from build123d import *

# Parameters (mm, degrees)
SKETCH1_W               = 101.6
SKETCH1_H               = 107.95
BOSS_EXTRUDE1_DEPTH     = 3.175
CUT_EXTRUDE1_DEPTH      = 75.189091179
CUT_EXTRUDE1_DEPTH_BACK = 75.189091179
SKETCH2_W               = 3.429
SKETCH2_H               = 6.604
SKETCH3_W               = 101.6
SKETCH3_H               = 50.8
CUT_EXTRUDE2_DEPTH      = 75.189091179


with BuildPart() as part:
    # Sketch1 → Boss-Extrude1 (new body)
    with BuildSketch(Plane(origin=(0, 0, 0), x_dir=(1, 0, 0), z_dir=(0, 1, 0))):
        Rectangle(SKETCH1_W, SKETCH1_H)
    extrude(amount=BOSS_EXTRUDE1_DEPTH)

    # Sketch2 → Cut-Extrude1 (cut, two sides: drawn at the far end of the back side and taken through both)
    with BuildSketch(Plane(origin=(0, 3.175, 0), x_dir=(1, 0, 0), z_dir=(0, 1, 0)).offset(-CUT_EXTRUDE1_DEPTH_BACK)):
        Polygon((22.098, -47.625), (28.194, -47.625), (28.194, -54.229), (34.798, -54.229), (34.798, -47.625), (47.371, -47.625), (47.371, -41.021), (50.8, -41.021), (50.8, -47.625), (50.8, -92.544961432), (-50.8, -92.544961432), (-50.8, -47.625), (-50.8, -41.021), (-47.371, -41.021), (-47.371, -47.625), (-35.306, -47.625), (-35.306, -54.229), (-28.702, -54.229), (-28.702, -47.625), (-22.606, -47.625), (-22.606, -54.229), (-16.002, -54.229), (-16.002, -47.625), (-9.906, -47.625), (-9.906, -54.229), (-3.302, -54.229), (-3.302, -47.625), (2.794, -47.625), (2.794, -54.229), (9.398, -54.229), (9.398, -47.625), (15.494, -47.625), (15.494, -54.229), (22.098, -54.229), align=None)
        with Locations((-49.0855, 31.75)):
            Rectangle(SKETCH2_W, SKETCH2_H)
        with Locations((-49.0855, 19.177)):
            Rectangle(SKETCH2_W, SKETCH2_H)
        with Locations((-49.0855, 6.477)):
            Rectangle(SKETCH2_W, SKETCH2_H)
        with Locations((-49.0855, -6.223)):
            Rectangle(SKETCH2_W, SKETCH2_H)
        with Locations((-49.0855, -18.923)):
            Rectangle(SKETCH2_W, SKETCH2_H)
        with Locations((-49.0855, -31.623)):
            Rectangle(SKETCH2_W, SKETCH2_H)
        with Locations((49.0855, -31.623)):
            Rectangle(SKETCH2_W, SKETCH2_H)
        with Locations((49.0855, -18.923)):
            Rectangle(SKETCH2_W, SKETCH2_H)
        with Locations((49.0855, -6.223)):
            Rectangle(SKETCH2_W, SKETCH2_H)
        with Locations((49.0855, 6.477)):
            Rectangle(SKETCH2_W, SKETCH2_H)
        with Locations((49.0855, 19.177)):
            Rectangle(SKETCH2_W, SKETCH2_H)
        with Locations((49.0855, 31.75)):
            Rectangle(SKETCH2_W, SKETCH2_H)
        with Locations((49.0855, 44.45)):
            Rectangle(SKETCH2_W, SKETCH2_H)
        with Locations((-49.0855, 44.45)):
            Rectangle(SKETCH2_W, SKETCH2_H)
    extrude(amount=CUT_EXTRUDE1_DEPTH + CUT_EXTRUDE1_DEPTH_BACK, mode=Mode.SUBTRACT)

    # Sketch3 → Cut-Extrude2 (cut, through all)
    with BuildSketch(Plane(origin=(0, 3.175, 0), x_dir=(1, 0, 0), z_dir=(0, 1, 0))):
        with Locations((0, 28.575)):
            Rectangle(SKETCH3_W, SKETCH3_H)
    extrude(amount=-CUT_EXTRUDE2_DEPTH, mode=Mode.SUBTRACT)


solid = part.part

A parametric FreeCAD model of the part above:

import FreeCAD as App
import Part
import Sketcher

V = App.Vector
Q = App.Units.Quantity


def add_polygon(sketch, points):
    """Adds a closed chain of lines whose ends are joined by coincident constraints."""
    first, n = sketch.GeometryCount, len(points)
    for a, b in zip(points, points[1:] + points[:1]):
        sketch.addGeometry(Part.LineSegment(App.Vector(*a, 0), App.Vector(*b, 0)), False)
    for i in range(n):
        sketch.addConstraint(Sketcher.Constraint("Coincident", first + i, 2, first + (i + 1) % n, 1))

doc = App.newDocument("Part")
params = doc.addObject("Spreadsheet::Sheet", "Params")
for row, (alias, value) in enumerate([
    ("sketch1_width", "4 in"),
    ("sketch1_height", "4.25 in"),
    ("pad1_length", "0.125 in"),
    ("sketch2_width", "4 in"),
    ("sketch2_width2", "0.24 in"),
    ("sketch2_width3", "0.26 in"),
    ("sketch2_width4", "0.475 in"),
    ("sketch2_width5", "0.135 in"),
    ("sketch3_width", "4 in"),
    ("sketch3_height", "2 in"),
], start=1):
    params.set(f"A{row}", alias)
    params.set(f"B{row}", "=" + value)
    params.setAlias(f"B{row}", alias)

body = doc.addObject("PartDesign::Body", "Body")

sketch1 = doc.addObject("Sketcher::SketchObject", "Sketch")
body.addObject(sketch1)
sketch1.AttachmentSupport = (doc.XZ_Plane, [""])
sketch1.MapMode = "FlatFace"
add_polygon(sketch1, [(-51, -54), (-51, 54), (51, 54), (51, -54)])
sketch1.addConstraint([
    Sketcher.Constraint("Vertical", 0),
    Sketcher.Constraint("Horizontal", 1),
    Sketcher.Constraint("Vertical", 2),
    Sketcher.Constraint("Horizontal", 3),
    Sketcher.Constraint("Symmetric", 0, 2, 2, 2, -1, 1),
    Sketcher.Constraint("DistanceX", 1, 1, 1, 2, Q("4 in")),
    Sketcher.Constraint("DistanceY", 0, 1, 0, 2, Q("4.25 in")),
])
sketch1.setExpression("Constraints[9]", "Params.sketch1_width")
sketch1.setExpression("Constraints[10]", "Params.sketch1_height")
pad1 = doc.addObject("PartDesign::Pad", "Pad")
body.addObject(pad1)
pad1.Profile = sketch1
pad1.setExpression("Length", "Params.pad1_length")
pad1.Reversed = True

sketch2 = doc.addObject("Sketcher::SketchObject", "Sketch001")
body.addObject(sketch2)
sketch2.AttachmentSupport = (doc.XZ_Plane, [""])
sketch2.MapMode = "FlatFace"
sketch2.AttachmentOffset = App.Placement(V(0, 0, -0.125 * 25.4), App.Rotation())
add_polygon(sketch2, [(28.2, 47.6), (22.1, 47.6), (22.1, 54.2), (15.5, 54.2), (15.5, 47.6), (9.4, 47.6), (9.4, 54.2), (2.8, 54.2), (2.8, 47.6), (-3.3, 47.6), (-3.3, 54.2), (-9.9, 54.2), (-9.9, 47.6), (-16, 47.6), (-16, 54.2), (-22.6, 54.2), (-22.6, 47.6), (-28.7, 47.6), (-28.7, 54.2), (-35.3, 54.2), (-35.3, 47.6), (-47.4, 47.6), (-47.4, 41), (-50.8, 41), (-50.8, 92.5), (50.8, 92.5), (50.8, 41), (47.4, 41), (47.4, 47.6), (34.8, 47.6), (34.8, 54.2), (28.2, 54.2)])
add_polygon(sketch2, [(-50.8, -35.1), (-50.8, -28.4), (-47.4, -28.4), (-47.4, -35.1)])
add_polygon(sketch2, [(-50.8, -22.5), (-50.8, -15.9), (-47.4, -15.9), (-47.4, -22.5)])
add_polygon(sketch2, [(-50.8, -9.8), (-50.8, -3.2), (-47.4, -3.2), (-47.4, -9.8)])
add_polygon(sketch2, [(-50.8, 2.9), (-50.8, 9.5), (-47.4, 9.5), (-47.4, 2.9)])
add_polygon(sketch2, [(-50.8, 15.6), (-50.8, 22.2), (-47.4, 22.2), (-47.4, 15.6)])
add_polygon(sketch2, [(-50.8, 28.3), (-50.8, 34.9), (-47.4, 34.9), (-47.4, 28.3)])
add_polygon(sketch2, [(47.4, 28.3), (47.4, 34.9), (50.8, 34.9), (50.8, 28.3)])
add_polygon(sketch2, [(47.4, 15.6), (47.4, 22.2), (50.8, 22.2), (50.8, 15.6)])
add_polygon(sketch2, [(47.4, 2.9), (47.4, 9.5), (50.8, 9.5), (50.8, 2.9)])
add_polygon(sketch2, [(47.4, -9.8), (47.4, -3.2), (50.8, -3.2), (50.8, -9.8)])
add_polygon(sketch2, [(47.4, -22.5), (47.4, -15.9), (50.8, -15.9), (50.8, -22.5)])
add_polygon(sketch2, [(47.4, -35.1), (47.4, -28.4), (50.8, -28.4), (50.8, -35.1)])
add_polygon(sketch2, [(47.4, -47.8), (47.4, -41.1), (50.8, -41.1), (50.8, -47.8)])
add_polygon(sketch2, [(-50.8, -47.8), (-50.8, -41.1), (-47.4, -41.1), (-47.4, -47.8)])
sketch2.addConstraint([
    Sketcher.Constraint("Horizontal", 0),
    Sketcher.Constraint("Vertical", 1),
    Sketcher.Constraint("Horizontal", 2),
    Sketcher.Constraint("Vertical", 3),
    Sketcher.Constraint("Horizontal", 4),
    Sketcher.Constraint("Vertical", 5),
    Sketcher.Constraint("Horizontal", 6),
    Sketcher.Constraint("Vertical", 7),
    Sketcher.Constraint("Horizontal", 8),
    Sketcher.Constraint("Vertical", 9),
    Sketcher.Constraint("Horizontal", 10),
    Sketcher.Constraint("Vertical", 11),
    Sketcher.Constraint("Horizontal", 12),
    Sketcher.Constraint("Vertical", 13),
    Sketcher.Constraint("Horizontal", 14),
    Sketcher.Constraint("Vertical", 15),
    Sketcher.Constraint("Horizontal", 16),
    Sketcher.Constraint("Vertical", 17),
    Sketcher.Constraint("Horizontal", 18),
    Sketcher.Constraint("Vertical", 19),
    Sketcher.Constraint("Horizontal", 20),
    Sketcher.Constraint("Vertical", 21),
    Sketcher.Constraint("Horizontal", 22),
    Sketcher.Constraint("Vertical", 23),
    Sketcher.Constraint("Horizontal", 24),
    Sketcher.Constraint("Vertical", 25),
    Sketcher.Constraint("Horizontal", 26),
    Sketcher.Constraint("Vertical", 27),
    Sketcher.Constraint("Horizontal", 28),
    Sketcher.Constraint("Vertical", 29),
    Sketcher.Constraint("Horizontal", 30),
    Sketcher.Constraint("Vertical", 31),
    Sketcher.Constraint("Vertical", 32),
    Sketcher.Constraint("Horizontal", 33),
    Sketcher.Constraint("Vertical", 34),
    Sketcher.Constraint("Horizontal", 35),
    Sketcher.Constraint("Vertical", 36),
    Sketcher.Constraint("Horizontal", 37),
    Sketcher.Constraint("Vertical", 38),
    Sketcher.Constraint("Horizontal", 39),
    Sketcher.Constraint("Vertical", 40),
    Sketcher.Constraint("Horizontal", 41),
    Sketcher.Constraint("Vertical", 42),
    Sketcher.Constraint("Horizontal", 43),
    Sketcher.Constraint("Vertical", 44),
    Sketcher.Constraint("Horizontal", 45),
    Sketcher.Constraint("Vertical", 46),
    Sketcher.Constraint("Horizontal", 47),
    Sketcher.Constraint("Vertical", 48),
    Sketcher.Constraint("Horizontal", 49),
    Sketcher.Constraint("Vertical", 50),
    Sketcher.Constraint("Horizontal", 51),
    Sketcher.Constraint("Vertical", 52),
    Sketcher.Constraint("Horizontal", 53),
    Sketcher.Constraint("Vertical", 54),
    Sketcher.Constraint("Horizontal", 55),
    Sketcher.Constraint("Vertical", 56),
    Sketcher.Constraint("Horizontal", 57),
    Sketcher.Constraint("Vertical", 58),
    Sketcher.Constraint("Horizontal", 59),
    Sketcher.Constraint("Vertical", 60),
    Sketcher.Constraint("Horizontal", 61),
    Sketcher.Constraint("Vertical", 62),
    Sketcher.Constraint("Horizontal", 63),
    Sketcher.Constraint("Vertical", 64),
    Sketcher.Constraint("Horizontal", 65),
    Sketcher.Constraint("Vertical", 66),
    Sketcher.Constraint("Horizontal", 67),
    Sketcher.Constraint("Vertical", 68),
    Sketcher.Constraint("Horizontal", 69),
    Sketcher.Constraint("Vertical", 70),
    Sketcher.Constraint("Horizontal", 71),
    Sketcher.Constraint("Vertical", 72),
    Sketcher.Constraint("Horizontal", 73),
    Sketcher.Constraint("Vertical", 74),
    Sketcher.Constraint("Horizontal", 75),
    Sketcher.Constraint("Vertical", 76),
    Sketcher.Constraint("Horizontal", 77),
    Sketcher.Constraint("Vertical", 78),
    Sketcher.Constraint("Horizontal", 79),
    Sketcher.Constraint("Vertical", 80),
    Sketcher.Constraint("Horizontal", 81),
    Sketcher.Constraint("Vertical", 82),
    Sketcher.Constraint("Horizontal", 83),
    Sketcher.Constraint("Vertical", 84),
    Sketcher.Constraint("Horizontal", 85),
    Sketcher.Constraint("Vertical", 86),
    Sketcher.Constraint("Horizontal", 87),
    Sketcher.Constraint("Symmetric", 22, 2, 25, 2, -2),
    Sketcher.Constraint("Symmetric", 20, 2, 27, 2, -2),
    Sketcher.Constraint("Symmetric", 53, 2, 56, 2, -2),
    Sketcher.Constraint("Symmetric", 55, 2, 58, 2, -2),
    Sketcher.Constraint("Symmetric", 49, 2, 60, 2, -2),
    Sketcher.Constraint("Symmetric", 51, 2, 62, 2, -2),
    Sketcher.Constraint("Symmetric", 45, 2, 64, 2, -2),
    Sketcher.Constraint("Symmetric", 47, 2, 66, 2, -2),
    Sketcher.Constraint("Symmetric", 41, 2, 68, 2, -2),
    Sketcher.Constraint("Symmetric", 43, 2, 70, 2, -2),
    Sketcher.Constraint("Symmetric", 37, 2, 72, 2, -2),
    Sketcher.Constraint("Symmetric", 39, 2, 74, 2, -2),
    Sketcher.Constraint("Symmetric", 33, 2, 76, 2, -2),
    Sketcher.Constraint("Symmetric", 35, 2, 78, 2, -2),
    Sketcher.Constraint("Symmetric", 81, 2, 84, 2, -2),
    Sketcher.Constraint("Symmetric", 83, 2, 86, 2, -2),
    Sketcher.Constraint("Horizontal", 0, 2, 3, 2),
    Sketcher.Constraint("Horizontal", 2, 2, 5, 2),
    Sketcher.Constraint("Horizontal", 4, 2, 7, 2),
    Sketcher.Constraint("Horizontal", 6, 2, 9, 2),
    Sketcher.Constraint("Horizontal", 8, 2, 11, 2),
    Sketcher.Constraint("Horizontal", 10, 2, 13, 2),
    Sketcher.Constraint("Horizontal", 12, 2, 15, 2),
    Sketcher.Constraint("Horizontal", 14, 2, 17, 2),
    Sketcher.Constraint("Horizontal", 16, 2, 19, 2),
    Sketcher.Constraint("Horizontal", 18, 2, 29, 2),
    Sketcher.Constraint("Vertical", 23, 2, 32, 2),
    Sketcher.Constraint("Vertical", 21, 2, 33, 2),
    Sketcher.Constraint("Vertical", 35, 2, 36, 2),
    Sketcher.Constraint("Vertical", 34, 2, 37, 2),
    Sketcher.Constraint("Vertical", 39, 2, 40, 2),
    Sketcher.Constraint("Vertical", 38, 2, 41, 2),
    Sketcher.Constraint("Vertical", 43, 2, 44, 2),
    Sketcher.Constraint("Vertical", 42, 2, 45, 2),
    Sketcher.Constraint("Vertical", 47, 2, 48, 2),
    Sketcher.Constraint("Vertical", 46, 2, 49, 2),
    Sketcher.Constraint("Vertical", 51, 2, 52, 2),
    Sketcher.Constraint("Vertical", 50, 2, 53, 2),
    Sketcher.Constraint("Vertical", 79, 2, 80, 2),
    Sketcher.Constraint("Vertical", 78, 2, 81, 2),
    Sketcher.Constraint("Equal", 0, 4),
    Sketcher.Constraint("Equal", 2, 6),
    Sketcher.Constraint("Equal", 4, 8),
    Sketcher.Constraint("Equal", 6, 10),
    Sketcher.Constraint("Equal", 8, 12),
    Sketcher.Constraint("Equal", 10, 14),
    Sketcher.Constraint("Equal", 12, 16),
    Sketcher.Constraint("Equal", 14, 18),
    Sketcher.Constraint("Equal", 18, 30),
    Sketcher.Constraint("Equal", 30, 1),
    Sketcher.Constraint("Equal", 19, 21),
    Sketcher.Constraint("Equal", 31, 32),
    Sketcher.Constraint("Equal", 34, 36),
    Sketcher.Constraint("Equal", 38, 40),
    Sketcher.Constraint("Equal", 42, 44),
    Sketcher.Constraint("Equal", 46, 48),
    Sketcher.Constraint("Equal", 50, 52),
    Sketcher.Constraint("Equal", 78, 80),
    Sketcher.Constraint("DistanceX", 24, 1, 24, 2, Q("4 in")),
    Sketcher.Constraint("DistanceX", 0, 2, 0, 1, Q("0.24 in")),
    Sketcher.Constraint("DistanceX", 2, 2, 2, 1, Q("0.26 in")),
    Sketcher.Constraint("DistanceX", 20, 2, 20, 1, Q("0.475 in")),
    Sketcher.Constraint("DistanceX", 22, 2, 22, 1, Q("0.135 in")),
    Sketcher.Constraint("DistanceY", 32, 2, -1, 1, Q("1.12 in")),
    Sketcher.Constraint("DistanceY", 80, 2, -1, 1, Q("1.62 in")),
    Sketcher.Constraint("DistanceY", -1, 1, 0, 2, Q("1.875 in")),
    Sketcher.Constraint("DistanceY", 36, 2, -1, 1, Q("0.625 in")),
    Sketcher.Constraint("DistanceY", 40, 2, -1, 1, Q("0.125 in")),
    Sketcher.Constraint("DistanceY", -1, 1, 44, 2, Q("0.375 in")),
    Sketcher.Constraint("DistanceY", -1, 1, 48, 2, Q("0.875 in")),
    Sketcher.Constraint("DistanceY", -1, 1, 52, 2, Q("1.375 in")),
    Sketcher.Constraint("DistanceY", 23, 1, 23, 2, 51.523961),
])
sketch2.setExpression("Constraints[234]", "Params.sketch2_width")
sketch2.setExpression("Constraints[235]", "Params.sketch2_width2")
sketch2.setExpression("Constraints[236]", "Params.sketch2_width3")
sketch2.setExpression("Constraints[237]", "Params.sketch2_width4")
sketch2.setExpression("Constraints[238]", "Params.sketch2_width5")
pocket1 = doc.addObject("PartDesign::Pocket", "Pocket")
body.addObject(pocket1)
pocket1.Profile = sketch2
pocket1.Type = "ThroughAll"
pocket1.Midplane = True

sketch3 = doc.addObject("Sketcher::SketchObject", "Sketch002")
body.addObject(sketch3)
sketch3.AttachmentSupport = (doc.XZ_Plane, [""])
sketch3.MapMode = "FlatFace"
sketch3.AttachmentOffset = App.Placement(V(0, 0, -0.125 * 25.4), App.Rotation())
add_polygon(sketch3, [(-51, -54), (-51, -3), (51, -3), (51, -54)])
sketch3.addConstraint([
    Sketcher.Constraint("Vertical", 0),
    Sketcher.Constraint("Horizontal", 1),
    Sketcher.Constraint("Vertical", 2),
    Sketcher.Constraint("Horizontal", 3),
    Sketcher.Constraint("DistanceX", 1, 1, 1, 2, Q("4 in")),
    Sketcher.Constraint("DistanceY", 0, 1, 0, 2, Q("2 in")),
    Sketcher.Constraint("DistanceX", 0, 2, -1, 1, Q("2 in")),
    Sketcher.Constraint("DistanceY", 0, 2, -1, 1, Q("0.125 in")),
])
sketch3.setExpression("Constraints[8]", "Params.sketch3_width")
sketch3.setExpression("Constraints[9]", "Params.sketch3_height")
pocket2 = doc.addObject("PartDesign::Pocket", "Pocket001")
body.addObject(pocket2)
pocket2.Profile = sketch3
pocket2.Type = "ThroughAll"
pocket2.Reversed = True

doc.recompute()
